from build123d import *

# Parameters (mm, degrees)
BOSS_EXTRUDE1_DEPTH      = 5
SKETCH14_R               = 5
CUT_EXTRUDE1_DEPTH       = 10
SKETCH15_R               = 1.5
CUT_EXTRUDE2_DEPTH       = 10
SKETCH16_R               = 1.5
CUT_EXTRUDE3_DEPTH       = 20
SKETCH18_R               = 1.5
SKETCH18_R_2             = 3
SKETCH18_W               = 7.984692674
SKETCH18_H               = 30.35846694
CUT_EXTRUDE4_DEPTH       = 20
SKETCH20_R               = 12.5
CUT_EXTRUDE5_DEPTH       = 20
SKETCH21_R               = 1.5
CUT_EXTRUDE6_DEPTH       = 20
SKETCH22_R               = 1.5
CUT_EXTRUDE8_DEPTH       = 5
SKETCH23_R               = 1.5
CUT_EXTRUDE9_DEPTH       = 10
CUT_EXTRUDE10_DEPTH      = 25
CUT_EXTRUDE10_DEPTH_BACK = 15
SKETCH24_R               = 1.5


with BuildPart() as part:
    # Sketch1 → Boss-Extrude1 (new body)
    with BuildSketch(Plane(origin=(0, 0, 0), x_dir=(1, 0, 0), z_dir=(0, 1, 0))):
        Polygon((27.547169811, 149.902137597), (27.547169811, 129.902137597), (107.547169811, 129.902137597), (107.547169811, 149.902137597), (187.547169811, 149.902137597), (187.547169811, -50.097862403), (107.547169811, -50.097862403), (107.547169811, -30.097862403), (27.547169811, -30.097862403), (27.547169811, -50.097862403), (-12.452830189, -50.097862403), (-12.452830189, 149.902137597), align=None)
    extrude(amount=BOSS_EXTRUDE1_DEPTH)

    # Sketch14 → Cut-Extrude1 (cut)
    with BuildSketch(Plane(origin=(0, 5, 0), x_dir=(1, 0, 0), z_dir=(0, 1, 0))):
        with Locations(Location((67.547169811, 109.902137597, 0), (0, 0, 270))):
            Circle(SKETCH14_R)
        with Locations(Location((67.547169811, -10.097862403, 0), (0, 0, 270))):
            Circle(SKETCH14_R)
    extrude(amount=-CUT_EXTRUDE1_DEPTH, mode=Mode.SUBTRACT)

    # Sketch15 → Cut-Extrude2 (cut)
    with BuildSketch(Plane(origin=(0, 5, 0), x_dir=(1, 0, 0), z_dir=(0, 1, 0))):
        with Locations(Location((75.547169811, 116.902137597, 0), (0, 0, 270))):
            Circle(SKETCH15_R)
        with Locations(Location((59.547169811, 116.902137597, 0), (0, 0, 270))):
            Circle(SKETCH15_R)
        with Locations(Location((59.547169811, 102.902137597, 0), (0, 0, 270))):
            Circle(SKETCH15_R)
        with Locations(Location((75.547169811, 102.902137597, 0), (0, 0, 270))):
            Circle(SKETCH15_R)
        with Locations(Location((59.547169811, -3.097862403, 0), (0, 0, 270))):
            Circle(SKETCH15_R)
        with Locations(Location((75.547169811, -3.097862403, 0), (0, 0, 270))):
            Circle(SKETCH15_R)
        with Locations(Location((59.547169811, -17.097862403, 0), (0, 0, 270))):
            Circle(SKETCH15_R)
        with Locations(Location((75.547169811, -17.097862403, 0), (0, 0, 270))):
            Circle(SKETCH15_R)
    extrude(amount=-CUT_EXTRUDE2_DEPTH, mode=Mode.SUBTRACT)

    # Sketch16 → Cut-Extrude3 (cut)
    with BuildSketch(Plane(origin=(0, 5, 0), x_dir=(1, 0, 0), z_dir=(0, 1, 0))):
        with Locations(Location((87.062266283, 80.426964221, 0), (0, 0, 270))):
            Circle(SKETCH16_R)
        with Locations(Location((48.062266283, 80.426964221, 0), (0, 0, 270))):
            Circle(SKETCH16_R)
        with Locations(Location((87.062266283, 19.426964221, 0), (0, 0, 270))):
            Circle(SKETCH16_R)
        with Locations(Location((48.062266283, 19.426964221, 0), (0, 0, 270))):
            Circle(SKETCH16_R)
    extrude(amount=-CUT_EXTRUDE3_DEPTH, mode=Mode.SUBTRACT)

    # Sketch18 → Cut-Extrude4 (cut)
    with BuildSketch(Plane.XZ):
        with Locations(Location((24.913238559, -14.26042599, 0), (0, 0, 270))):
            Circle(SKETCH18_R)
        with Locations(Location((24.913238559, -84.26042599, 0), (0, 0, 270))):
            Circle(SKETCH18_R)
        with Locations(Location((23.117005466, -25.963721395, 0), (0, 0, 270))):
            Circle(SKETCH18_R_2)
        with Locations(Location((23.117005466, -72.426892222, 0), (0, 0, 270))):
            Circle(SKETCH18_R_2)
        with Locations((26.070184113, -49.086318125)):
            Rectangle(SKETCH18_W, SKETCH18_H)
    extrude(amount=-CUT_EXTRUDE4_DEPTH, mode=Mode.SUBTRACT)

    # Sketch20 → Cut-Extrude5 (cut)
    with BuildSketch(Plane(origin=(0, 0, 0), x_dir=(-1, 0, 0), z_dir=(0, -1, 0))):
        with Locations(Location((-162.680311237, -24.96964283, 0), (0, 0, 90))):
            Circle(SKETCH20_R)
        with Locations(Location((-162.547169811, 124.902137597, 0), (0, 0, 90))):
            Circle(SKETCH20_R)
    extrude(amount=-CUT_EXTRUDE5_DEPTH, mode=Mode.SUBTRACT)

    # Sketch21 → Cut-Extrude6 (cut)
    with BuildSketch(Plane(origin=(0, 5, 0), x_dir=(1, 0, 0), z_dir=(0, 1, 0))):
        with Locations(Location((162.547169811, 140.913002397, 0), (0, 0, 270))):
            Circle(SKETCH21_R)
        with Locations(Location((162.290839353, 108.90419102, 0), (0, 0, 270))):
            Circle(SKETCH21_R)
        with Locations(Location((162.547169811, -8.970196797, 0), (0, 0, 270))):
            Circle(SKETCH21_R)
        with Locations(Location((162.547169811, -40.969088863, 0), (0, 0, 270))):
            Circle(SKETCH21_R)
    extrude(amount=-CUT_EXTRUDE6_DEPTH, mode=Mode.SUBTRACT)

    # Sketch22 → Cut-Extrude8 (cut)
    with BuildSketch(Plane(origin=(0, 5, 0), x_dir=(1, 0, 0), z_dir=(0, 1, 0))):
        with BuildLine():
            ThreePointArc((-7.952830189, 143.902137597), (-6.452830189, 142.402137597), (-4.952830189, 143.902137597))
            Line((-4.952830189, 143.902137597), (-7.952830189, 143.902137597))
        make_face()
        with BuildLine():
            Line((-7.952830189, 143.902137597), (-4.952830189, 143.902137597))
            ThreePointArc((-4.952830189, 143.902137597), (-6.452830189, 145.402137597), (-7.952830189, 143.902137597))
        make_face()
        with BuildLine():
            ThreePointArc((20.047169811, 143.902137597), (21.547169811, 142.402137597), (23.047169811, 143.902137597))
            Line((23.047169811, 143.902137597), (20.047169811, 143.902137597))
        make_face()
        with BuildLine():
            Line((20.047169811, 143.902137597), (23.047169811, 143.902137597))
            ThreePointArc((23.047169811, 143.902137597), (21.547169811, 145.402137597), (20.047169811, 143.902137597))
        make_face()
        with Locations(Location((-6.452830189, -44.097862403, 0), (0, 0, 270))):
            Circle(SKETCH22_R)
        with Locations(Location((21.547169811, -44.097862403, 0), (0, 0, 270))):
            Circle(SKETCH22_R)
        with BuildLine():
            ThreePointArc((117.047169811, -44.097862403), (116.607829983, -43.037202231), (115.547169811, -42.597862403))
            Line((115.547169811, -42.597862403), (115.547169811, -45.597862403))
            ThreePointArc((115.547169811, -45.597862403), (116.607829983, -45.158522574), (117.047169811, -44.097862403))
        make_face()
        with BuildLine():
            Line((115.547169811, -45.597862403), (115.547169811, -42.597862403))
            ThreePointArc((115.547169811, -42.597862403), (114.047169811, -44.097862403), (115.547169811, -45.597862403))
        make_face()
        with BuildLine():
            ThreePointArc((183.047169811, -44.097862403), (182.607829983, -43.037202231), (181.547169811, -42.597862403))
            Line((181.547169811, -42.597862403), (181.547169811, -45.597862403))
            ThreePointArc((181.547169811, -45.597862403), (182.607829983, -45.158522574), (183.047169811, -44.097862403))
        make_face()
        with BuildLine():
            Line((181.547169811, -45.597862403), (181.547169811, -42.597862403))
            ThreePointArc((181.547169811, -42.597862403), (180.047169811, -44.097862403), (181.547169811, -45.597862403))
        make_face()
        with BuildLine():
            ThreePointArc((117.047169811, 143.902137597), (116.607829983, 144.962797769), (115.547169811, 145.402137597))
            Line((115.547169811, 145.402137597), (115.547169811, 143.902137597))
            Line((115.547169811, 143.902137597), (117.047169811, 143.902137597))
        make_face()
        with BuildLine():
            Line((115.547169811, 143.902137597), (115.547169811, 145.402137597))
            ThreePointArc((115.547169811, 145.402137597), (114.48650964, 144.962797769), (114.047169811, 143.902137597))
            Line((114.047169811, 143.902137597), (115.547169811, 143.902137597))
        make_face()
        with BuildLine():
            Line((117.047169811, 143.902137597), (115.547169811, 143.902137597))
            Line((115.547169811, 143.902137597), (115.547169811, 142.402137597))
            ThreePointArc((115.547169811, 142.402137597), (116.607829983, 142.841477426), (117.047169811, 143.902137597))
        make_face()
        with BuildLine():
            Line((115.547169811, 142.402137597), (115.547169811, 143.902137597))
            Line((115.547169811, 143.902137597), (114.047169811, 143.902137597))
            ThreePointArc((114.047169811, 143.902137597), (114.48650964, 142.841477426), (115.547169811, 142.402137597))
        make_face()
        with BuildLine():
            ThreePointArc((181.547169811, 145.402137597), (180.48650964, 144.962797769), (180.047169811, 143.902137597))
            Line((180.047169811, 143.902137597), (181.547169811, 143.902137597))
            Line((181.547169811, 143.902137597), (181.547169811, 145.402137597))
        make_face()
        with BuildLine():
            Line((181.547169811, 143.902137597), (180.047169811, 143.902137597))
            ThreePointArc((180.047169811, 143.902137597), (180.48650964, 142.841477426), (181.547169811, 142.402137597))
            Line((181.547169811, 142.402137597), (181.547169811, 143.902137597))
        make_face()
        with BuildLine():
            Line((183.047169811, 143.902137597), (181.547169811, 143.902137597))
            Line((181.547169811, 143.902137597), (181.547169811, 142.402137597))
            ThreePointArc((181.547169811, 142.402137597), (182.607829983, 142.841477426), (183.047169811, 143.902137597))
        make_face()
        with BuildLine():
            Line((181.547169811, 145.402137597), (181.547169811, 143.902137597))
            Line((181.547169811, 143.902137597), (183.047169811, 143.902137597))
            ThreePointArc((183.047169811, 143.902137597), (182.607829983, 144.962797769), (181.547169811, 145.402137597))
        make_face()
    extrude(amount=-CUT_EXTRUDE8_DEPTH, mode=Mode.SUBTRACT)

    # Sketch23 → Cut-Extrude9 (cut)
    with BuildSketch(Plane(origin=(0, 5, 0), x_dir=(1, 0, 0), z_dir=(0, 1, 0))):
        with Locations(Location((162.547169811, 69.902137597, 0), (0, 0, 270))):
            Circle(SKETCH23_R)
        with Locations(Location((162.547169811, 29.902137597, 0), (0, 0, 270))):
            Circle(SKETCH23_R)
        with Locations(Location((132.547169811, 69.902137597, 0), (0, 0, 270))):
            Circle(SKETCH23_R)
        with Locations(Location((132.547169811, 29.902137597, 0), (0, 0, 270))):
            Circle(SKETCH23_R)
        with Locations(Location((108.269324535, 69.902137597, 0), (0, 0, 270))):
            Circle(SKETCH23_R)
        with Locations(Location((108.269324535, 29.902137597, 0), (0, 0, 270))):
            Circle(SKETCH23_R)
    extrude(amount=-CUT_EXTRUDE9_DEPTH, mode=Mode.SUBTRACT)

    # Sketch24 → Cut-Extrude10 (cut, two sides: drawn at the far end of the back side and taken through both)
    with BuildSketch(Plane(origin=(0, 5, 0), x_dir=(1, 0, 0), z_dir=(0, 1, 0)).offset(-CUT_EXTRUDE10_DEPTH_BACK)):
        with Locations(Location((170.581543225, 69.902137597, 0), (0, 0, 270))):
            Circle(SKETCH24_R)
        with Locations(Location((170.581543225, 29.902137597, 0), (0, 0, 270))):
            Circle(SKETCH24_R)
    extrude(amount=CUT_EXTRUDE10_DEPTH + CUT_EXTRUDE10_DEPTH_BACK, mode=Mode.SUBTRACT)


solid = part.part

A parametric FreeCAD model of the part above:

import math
import FreeCAD as App
import Part
import Sketcher
Q = App.Units.Quantity

doc = App.newDocument("Part")
body = doc.addObject("PartDesign::Body", "Body")

sketch1 = body.newObject("Sketcher::SketchObject", "Sketch")
sketch1.AttachmentSupport = (doc.getObject("XZ_Plane"), [""])
sketch1.MapMode = "FlatFace"
sketch1.addGeometry([
    Part.LineSegment(App.Vector(28, -130, 0), App.Vector(28, -150, 0)),
    Part.LineSegment(App.Vector(28, -150, 0), App.Vector(-12, -150, 0)),
    Part.LineSegment(App.Vector(-12, -150, 0), App.Vector(-12, 50, 0)),
    Part.LineSegment(App.Vector(-12, 50, 0), App.Vector(28, 50, 0)),
    Part.LineSegment(App.Vector(28, 50, 0), App.Vector(28, 30, 0)),
    Part.LineSegment(App.Vector(28, 30, 0), App.Vector(108, 30, 0)),
    Part.LineSegment(App.Vector(108, 30, 0), App.Vector(108, 50, 0)),
    Part.LineSegment(App.Vector(108, 50, 0), App.Vector(188, 50, 0)),
    Part.LineSegment(App.Vector(188, 50, 0), App.Vector(188, -150, 0)),
    Part.LineSegment(App.Vector(188, -150, 0), App.Vector(108, -150, 0)),
    Part.LineSegment(App.Vector(108, -150, 0), App.Vector(108, -130, 0)),
    Part.LineSegment(App.Vector(108, -130, 0), App.Vector(28, -130, 0)),
], False)
sketch1.addConstraint([
    Sketcher.Constraint("Coincident", 0, 2, 1, 1),
    Sketcher.Constraint("Coincident", 1, 2, 2, 1),
    Sketcher.Constraint("Coincident", 2, 2, 3, 1),
    Sketcher.Constraint("Coincident", 3, 2, 4, 1),
    Sketcher.Constraint("Coincident", 4, 2, 5, 1),
    Sketcher.Constraint("Coincident", 5, 2, 6, 1),
    Sketcher.Constraint("Coincident", 6, 2, 7, 1),
    Sketcher.Constraint("Coincident", 7, 2, 8, 1),
    Sketcher.Constraint("Coincident", 8, 2, 9, 1),
    Sketcher.Constraint("Coincident", 9, 2, 10, 1),
    Sketcher.Constraint("Coincident", 10, 2, 11, 1),
    Sketcher.Constraint("Coincident", 11, 2, 0, 1),
    Sketcher.Constraint("Vertical", 0),
    Sketcher.Constraint("Horizontal", 1),
    Sketcher.Constraint("Vertical", 2),
    Sketcher.Constraint("Horizontal", 3),
    Sketcher.Constraint("Vertical", 4),
    Sketcher.Constraint("Horizontal", 5),
    Sketcher.Constraint("Vertical", 6),
    Sketcher.Constraint("Horizontal", 7),
    Sketcher.Constraint("Vertical", 8),
    Sketcher.Constraint("Horizontal", 9),
    Sketcher.Constraint("Vertical", 10),
    Sketcher.Constraint("Horizontal", 11),
    Sketcher.Constraint("Horizontal", 3, 2, 6, 2),
    Sketcher.Constraint("Horizontal", 1, 2, 8, 2),
    Sketcher.Constraint("Vertical", 0, 2, 3, 2),
    Sketcher.Constraint("Vertical", 6, 2, 9, 2),
    Sketcher.Constraint("Equal", 5, 7),
    Sketcher.Constraint("Equal", 0, 4),
    Sketcher.Constraint("DistanceX", 1, 2, 1, 1, Q("40 mm")),
    Sketcher.Constraint("DistanceX", 5, 1, 5, 2, Q("80 mm")),
    Sketcher.Constraint("DistanceY", 0, 2, 0, 1, Q("20 mm")),
    Sketcher.Constraint("DistanceY", 2, 1, 2, 2, Q("200 mm")),
    Sketcher.Constraint("DistanceX", -1, 1, 0, 2, Q("27.54717 mm")),
    Sketcher.Constraint("DistanceY", 0, 2, -1, 1, Q("149.902138 mm")),
])
pad1 = body.newObject("PartDesign::Pad", "Pad")
pad1.Profile = sketch1
pad1.Length = 5
pad1.Reversed = True

sketch2 = body.newObject("Sketcher::SketchObject", "Sketch001")
sketch2.AttachmentSupport = (doc.getObject("XZ_Plane"), [""])
sketch2.MapMode = "FlatFace"
sketch2.AttachmentOffset = App.Placement(App.Vector(0, 0, -5), App.Rotation())
sketch2.addGeometry([
    Part.Circle(App.Vector(68, -110, 0), App.Vector(0, 0, 1), 5),
    Part.Circle(App.Vector(68, 10, 0), App.Vector(0, 0, 1), 5),
], False)
sketch2.addConstraint([
    Sketcher.Constraint("Equal", 0, 1),
    Sketcher.Constraint("Vertical", 0, 3, 1, 3),
    Sketcher.Constraint("Diameter", 0, Q("10 mm")),
    Sketcher.Constraint("DistanceY", 0, 3, 1, 3, Q("120 mm")),
    Sketcher.Constraint("DistanceX", -1, 1, 0, 3, Q("67.54717 mm")),
    Sketcher.Constraint("DistanceY", 0, 3, -1, 1, Q("109.902138 mm")),
])
pocket1 = body.newObject("PartDesign::Pocket", "Pocket")
pocket1.Profile = sketch2
pocket1.Length = 10
pocket1.Reversed = True

sketch3 = body.newObject("Sketcher::SketchObject", "Sketch002")
sketch3.AttachmentSupport = (doc.getObject("XZ_Plane"), [""])
sketch3.MapMode = "FlatFace"
sketch3.AttachmentOffset = App.Placement(App.Vector(0, 0, -5), App.Rotation())
sketch3.addGeometry([
    Part.Circle(App.Vector(75.5, -116.9, 0), App.Vector(0, 0, 1), 1.5),
    Part.Circle(App.Vector(59.5, -116.9, 0), App.Vector(0, 0, 1), 1.5),
    Part.Circle(App.Vector(59.5, -102.9, 0), App.Vector(0, 0, 1), 1.5),
    Part.Circle(App.Vector(75.5, -102.9, 0), App.Vector(0, 0, 1), 1.5),
    Part.Circle(App.Vector(59.5, 3.1, 0), App.Vector(0, 0, 1), 1.5),
    Part.Circle(App.Vector(75.5, 3.1, 0), App.Vector(0, 0, 1), 1.5),
    Part.Circle(App.Vector(59.5, 17.1, 0), App.Vector(0, 0, 1), 1.5),
    Part.Circle(App.Vector(75.5, 17.1, 0), App.Vector(0, 0, 1), 1.5),
], False)
sketch3.addConstraint([
    Sketcher.Constraint("Equal", 0, 1),
    Sketcher.Constraint("Equal", 1, 2),
    Sketcher.Constraint("Equal", 2, 3),
    Sketcher.Constraint("Equal", 3, 4),
    Sketcher.Constraint("Equal", 4, 5),
    Sketcher.Constraint("Equal", 5, 6),
    Sketcher.Constraint("Equal", 6, 7),
    Sketcher.Constraint("Horizontal", 0, 3, 1, 3),
    Sketcher.Constraint("Horizontal", 2, 3, 3, 3),
    Sketcher.Constraint("Horizontal", 4, 3, 5, 3),
    Sketcher.Constraint("Horizontal", 6, 3, 7, 3),
    Sketcher.Constraint("Vertical", 1, 3, 2, 3),
    Sketcher.Constraint("Vertical", 0, 3, 3, 3),
    Sketcher.Constraint("Vertical", 2, 3, 4, 3),
    Sketcher.Constraint("Vertical", 3, 3, 5, 3),
    Sketcher.Constraint("Vertical", 4, 3, 6, 3),
    Sketcher.Constraint("Vertical", 5, 3, 7, 3),
    Sketcher.Constraint("Diameter", 0, Q("3 mm")),
    Sketcher.Constraint("DistanceX", 1, 3, 0, 3, Q("16 mm")),
    Sketcher.Constraint("DistanceY", 1, 3, 2, 3, Q("14 mm")),
    Sketcher.Constraint("DistanceY", 2, 3, 4, 3, Q("106 mm")),
    Sketcher.Constraint("DistanceY", 4, 3, 6, 3, Q("14 mm")),
    Sketcher.Constraint("DistanceX", -1, 1, 0, 3, Q("75.54717 mm")),
    Sketcher.Constraint("DistanceY", 0, 3, -1, 1, Q("116.902138 mm")),
])
pocket2 = body.newObject("PartDesign::Pocket", "Pocket001")
pocket2.Profile = sketch3
pocket2.Length = 10
pocket2.Reversed = True

sketch4 = body.newObject("Sketcher::SketchObject", "Sketch003")
sketch4.AttachmentSupport = (doc.getObject("XZ_Plane"), [""])
sketch4.MapMode = "FlatFace"
sketch4.AttachmentOffset = App.Placement(App.Vector(0, 0, -5), App.Rotation())
sketch4.addGeometry([
    Part.Circle(App.Vector(87.1, -80.4, 0), App.Vector(0, 0, 1), 1.5),
    Part.Circle(App.Vector(48.1, -80.4, 0), App.Vector(0, 0, 1), 1.5),
    Part.Circle(App.Vector(87.1, -19.4, 0), App.Vector(0, 0, 1), 1.5),
    Part.Circle(App.Vector(48.1, -19.4, 0), App.Vector(0, 0, 1), 1.5),
], False)
sketch4.addConstraint([
    Sketcher.Constraint("Equal", 0, 1),
    Sketcher.Constraint("Equal", 1, 2),
    Sketcher.Constraint("Equal", 2, 3),
    Sketcher.Constraint("Horizontal", 0, 3, 1, 3),
    Sketcher.Constraint("Horizontal", 2, 3, 3, 3),
    Sketcher.Constraint("Vertical", 0, 3, 2, 3),
    Sketcher.Constraint("Vertical", 1, 3, 3, 3),
    Sketcher.Constraint("Diameter", 0, Q("3 mm")),
    Sketcher.Constraint("DistanceX", 1, 3, 0, 3, Q("39 mm")),
    Sketcher.Constraint("DistanceY", 0, 3, 2, 3, Q("61 mm")),
    Sketcher.Constraint("DistanceX", -1, 1, 0, 3, Q("87.062266 mm")),
    Sketcher.Constraint("DistanceY", 0, 3, -1, 1, Q("80.426964 mm")),
])
pocket3 = body.newObject("PartDesign::Pocket", "Pocket002")
pocket3.Profile = sketch4
pocket3.Length = 20
pocket3.Reversed = True

sketch5 = body.newObject("Sketcher::SketchObject", "Sketch004")
sketch5.AttachmentSupport = (doc.getObject("XZ_Plane"), [""])
sketch5.MapMode = "FlatFace"
sketch5.addGeometry([
    Part.Circle(App.Vector(24.9, -14.3, 0), App.Vector(0, 0, 1), 1.5),
    Part.Circle(App.Vector(24.9, -84.3, 0), App.Vector(0, 0, 1), 1.5),
    Part.Circle(App.Vector(23.1, -26, 0), App.Vector(0, 0, 1), 3),
    Part.Circle(App.Vector(23.1, -72.4, 0), App.Vector(0, 0, 1), 3),
    Part.LineSegment(App.Vector(22.1, -33.9, 0), App.Vector(22.1, -64.3, 0)),
    Part.LineSegment(App.Vector(22.1, -64.3, 0), App.Vector(30.1, -64.3, 0)),
    Part.LineSegment(App.Vector(30.1, -64.3, 0), App.Vector(30.1, -33.9, 0)),
    Part.LineSegment(App.Vector(30.1, -33.9, 0), App.Vector(22.1, -33.9, 0)),
], False)
sketch5.addConstraint([
    Sketcher.Constraint("Coincident", 4, 2, 5, 1),
    Sketcher.Constraint("Coincident", 5, 2, 6, 1),
    Sketcher.Constraint("Coincident", 6, 2, 7, 1),
    Sketcher.Constraint("Coincident", 7, 2, 4, 1),
    Sketcher.Constraint("Vertical", 4),
    Sketcher.Constraint("Horizontal", 5),
    Sketcher.Constraint("Vertical", 6),
    Sketcher.Constraint("Horizontal", 7),
    Sketcher.Constraint("Equal", 0, 1),
    Sketcher.Constraint("Equal", 2, 3),
    Sketcher.Constraint("Vertical", 0, 3, 1, 3),
    Sketcher.Constraint("Vertical", 2, 3, 3, 3),
    Sketcher.Constraint("Diameter", 0, Q("3 mm")),
    Sketcher.Constraint("Diameter", 2, Q("6 mm")),
    Sketcher.Constraint("DistanceY", 1, 3, 0, 3, Q("70 mm")),
    Sketcher.Constraint("DistanceX", 4, 2, 1, 3, Q("2.835401 mm")),
    Sketcher.Constraint("DistanceX", 5, 1, 5, 2, Q("7.984693 mm")),
    Sketcher.Constraint("DistanceY", 4, 2, 4, 1, Q("30.358467 mm")),
    Sketcher.Constraint("DistanceX", -1, 1, 0, 3, Q("24.913239 mm")),
    Sketcher.Constraint("DistanceY", 2, 3, -1, 1, Q("25.963721 mm")),
    Sketcher.Constraint("DistanceY", 4, 2, -1, 1, Q("64.265552 mm")),
    Sketcher.Constraint("DistanceY", 3, 3, 2, 3, Q("46.463171 mm")),
    Sketcher.Constraint("DistanceY", 6, 2, 0, 3, Q("19.646659 mm")),
    Sketcher.Constraint("DistanceX", -1, 1, 2, 3, Q("23.117005 mm")),
])
pocket4 = body.newObject("PartDesign::Pocket", "Pocket003")
pocket4.Profile = sketch5
pocket4.Length = 20

sketch6 = body.newObject("Sketcher::SketchObject", "Sketch005")
sketch6.AttachmentSupport = (doc.getObject("XZ_Plane"), [""])
sketch6.MapMode = "FlatFace"
sketch6.addGeometry([
    Part.Circle(App.Vector(163, 25, 0), App.Vector(0, 0, 1), 12),
    Part.Circle(App.Vector(163, -125, 0), App.Vector(0, 0, 1), 12),
], False)
sketch6.addConstraint([
    Sketcher.Constraint("Equal", 0, 1),
    Sketcher.Constraint("Diameter", 0, Q("25 mm")),
    Sketcher.Constraint("DistanceX", -1, 1, 0, 3, Q("162.680311 mm")),
    Sketcher.Constraint("DistanceX", -1, 1, 1, 3, Q("162.54717 mm")),
    Sketcher.Constraint("DistanceY", 1, 3, 0, 3, Q("149.87178 mm")),
    Sketcher.Constraint("DistanceY", -1, 1, 0, 3, Q("24.969643 mm")),
])
pocket5 = body.newObject("PartDesign::Pocket", "Pocket004")
pocket5.Profile = sketch6
pocket5.Length = 20

sketch7 = body.newObject("Sketcher::SketchObject", "Sketch006")
sketch7.AttachmentSupport = (doc.getObject("XZ_Plane"), [""])
sketch7.MapMode = "FlatFace"
sketch7.AttachmentOffset = App.Placement(App.Vector(0, 0, -5), App.Rotation())
sketch7.addGeometry([
    Part.Circle(App.Vector(162.5, -140.9, 0), App.Vector(0, 0, 1), 1.5),
    Part.Circle(App.Vector(162.3, -108.9, 0), App.Vector(0, 0, 1), 1.5),
    Part.Circle(App.Vector(162.5, 9, 0), App.Vector(0, 0, 1), 1.5),
    Part.Circle(App.Vector(162.5, 41, 0), App.Vector(0, 0, 1), 1.5),
], False)
sketch7.addConstraint([
    Sketcher.Constraint("Equal", 0, 1),
    Sketcher.Constraint("Equal", 1, 2),
    Sketcher.Constraint("Equal", 2, 3),
    Sketcher.Constraint("Vertical", 0, 3, 2, 3),
    Sketcher.Constraint("Vertical", 2, 3, 3, 3),
    Sketcher.Constraint("Diameter", 0, Q("3 mm")),
    Sketcher.Constraint("DistanceY", 0, 3, 2, 3, Q("149.883199 mm")),
    Sketcher.Constraint("DistanceX", -1, 1, 0, 3, Q("162.54717 mm")),
    Sketcher.Constraint("DistanceX", -1, 1, 1, 3, Q("162.290839 mm")),
    Sketcher.Constraint("DistanceY", 1, 3, -1, 1, Q("108.904191 mm")),
    Sketcher.Constraint("DistanceY", -1, 1, 3, 3, Q("40.969089 mm")),
    Sketcher.Constraint("DistanceY", 0, 3, 1, 3, Q("32.008811 mm")),
])
pocket6 = body.newObject("PartDesign::Pocket", "Pocket005")
pocket6.Profile = sketch7
pocket6.Length = 20
pocket6.Reversed = True

sketch8 = body.newObject("Sketcher::SketchObject", "Sketch007")
sketch8.AttachmentSupport = (doc.getObject("XZ_Plane"), [""])
sketch8.MapMode = "FlatFace"
sketch8.AttachmentOffset = App.Placement(App.Vector(0, 0, -5), App.Rotation())
sketch8.addGeometry([
    Part.Circle(App.Vector(-6.5, -143.9, 0), App.Vector(0, 0, 1), 1.5),
    Part.Circle(App.Vector(21.5, -143.9, 0), App.Vector(0, 0, 1), 1.5),
    Part.Circle(App.Vector(-6.5, 44.1, 0), App.Vector(0, 0, 1), 1.5),
    Part.Circle(App.Vector(21.5, 44.1, 0), App.Vector(0, 0, 1), 1.5),
    Part.ArcOfCircle(Part.Circle(App.Vector(115.5, 44.1, 0), App.Vector(0, 0, 1), 1.5), math.radians(-90), math.radians(0)),
    Part.ArcOfCircle(Part.Circle(App.Vector(115.5, 44.1, 0), App.Vector(0, 0, 1), 1.5), math.radians(90), math.radians(270)),
    Part.ArcOfCircle(Part.Circle(App.Vector(115.5, 44.1, 0), App.Vector(0, 0, 1), 1.5), math.radians(0), math.radians(90)),
    Part.ArcOfCircle(Part.Circle(App.Vector(181.5, 44.1, 0), App.Vector(0, 0, 1), 1.5), math.radians(-90), math.radians(0)),
    Part.ArcOfCircle(Part.Circle(App.Vector(181.5, 44.1, 0), App.Vector(0, 0, 1), 1.5), math.radians(90), math.radians(270)),
    Part.ArcOfCircle(Part.Circle(App.Vector(181.5, 44.1, 0), App.Vector(0, 0, 1), 1.5), math.radians(0), math.radians(90)),
    Part.ArcOfCircle(Part.Circle(App.Vector(115.5, -143.9, 0), App.Vector(0, 0, 1), 1.5), math.radians(-180), math.radians(-90)),
    Part.ArcOfCircle(Part.Circle(App.Vector(115.5, -143.9, 0), App.Vector(0, 0, 1), 1.5), math.radians(90), math.radians(180)),
    Part.ArcOfCircle(Part.Circle(App.Vector(115.5, -143.9, 0), App.Vector(0, 0, 1), 1.5), math.radians(0), math.radians(90)),
    Part.ArcOfCircle(Part.Circle(App.Vector(115.5, -143.9, 0), App.Vector(0, 0, 1), 1.5), math.radians(-90), math.radians(0)),
    Part.ArcOfCircle(Part.Circle(App.Vector(181.5, -143.9, 0), App.Vector(0, 0, 1), 1.5), math.radians(-180), math.radians(-90)),
    Part.ArcOfCircle(Part.Circle(App.Vector(181.5, -143.9, 0), App.Vector(0, 0, 1), 1.5), math.radians(90), math.radians(180)),
    Part.ArcOfCircle(Part.Circle(App.Vector(181.5, -143.9, 0), App.Vector(0, 0, 1), 1.5), math.radians(0), math.radians(90)),
    Part.ArcOfCircle(Part.Circle(App.Vector(181.5, -143.9, 0), App.Vector(0, 0, 1), 1.5), math.radians(-90), math.radians(0)),
], False)
sketch8.addConstraint([
    Sketcher.Constraint("Tangent", 4, 1, 5, 2),
    Sketcher.Constraint("Tangent", 5, 1, 6, 2),
    Sketcher.Constraint("Tangent", 6, 1, 4, 2),
    Sketcher.Constraint("Tangent", 7, 1, 8, 2),
    Sketcher.Constraint("Tangent", 8, 1, 9, 2),
    Sketcher.Constraint("Tangent", 9, 1, 7, 2),
    Sketcher.Constraint("Tangent", 10, 1, 11, 2),
    Sketcher.Constraint("Tangent", 11, 1, 12, 2),
    Sketcher.Constraint("Tangent", 12, 1, 13, 2),
    Sketcher.Constraint("Tangent", 13, 1, 10, 2),
    Sketcher.Constraint("Tangent", 14, 1, 15, 2),
    Sketcher.Constraint("Tangent", 15, 1, 16, 2),
    Sketcher.Constraint("Tangent", 16, 1, 17, 2),
    Sketcher.Constraint("Tangent", 17, 1, 14, 2),
    Sketcher.Constraint("Equal", 0, 1),
    Sketcher.Constraint("Equal", 1, 2),
    Sketcher.Constraint("Equal", 2, 3),
    Sketcher.Constraint("Equal", 3, 4),
    Sketcher.Constraint("Equal", 6, 7),
    Sketcher.Constraint("Equal", 9, 10),
    Sketcher.Constraint("Equal", 10, 11),
    Sketcher.Constraint("Equal", 13, 14),
    Sketcher.Constraint("Equal", 14, 15),
    Sketcher.Constraint("Horizontal", 0, 3, 1, 3),
    Sketcher.Constraint("Horizontal", 2, 3, 3, 3),
    Sketcher.Constraint("Horizontal", 3, 3, 4, 3),
    Sketcher.Constraint("Horizontal", 6, 3, 7, 3),
    Sketcher.Constraint("Horizontal", 1, 3, 10, 3),
    Sketcher.Constraint("Horizontal", 13, 3, 14, 3),
    Sketcher.Constraint("Horizontal", 9, 3, 6, 1),
    Sketcher.Constraint("Horizontal", 6, 1, 9, 1),
    Sketcher.Constraint("Horizontal", 17, 3, 10, 1),
    Sketcher.Constraint("Horizontal", 10, 1, 12, 1),
    Sketcher.Constraint("Horizontal", 12, 1, 14, 1),
    Sketcher.Constraint("Horizontal", 14, 1, 16, 1),
    Sketcher.Constraint("Vertical", 0, 3, 2, 3),
    Sketcher.Constraint("Vertical", 1, 3, 3, 3),
    Sketcher.Constraint("Vertical", 6, 3, 10, 3),
    Sketcher.Constraint("Vertical", 9, 3, 14, 3),
    Sketcher.Constraint("Vertical", 13, 3, 4, 1),
    Sketcher.Constraint("Vertical", 4, 1, 5, 1),
    Sketcher.Constraint("Vertical", 17, 3, 7, 1),
    Sketcher.Constraint("Vertical", 7, 1, 8, 1),
    Sketcher.Constraint("Vertical", 5, 1, 11, 1),
    Sketcher.Constraint("Vertical", 11, 1, 13, 1),
    Sketcher.Constraint("Vertical", 8, 1, 15, 1),
    Sketcher.Constraint("Vertical", 15, 1, 17, 1),
    Sketcher.Constraint("Diameter", 0, Q("3 mm")),
    Sketcher.Constraint("DistanceX", 0, 3, 1, 3, Q("28 mm")),
    Sketcher.Constraint("DistanceY", 0, 3, 2, 3, Q("188 mm")),
    Sketcher.Constraint("DistanceX", 3, 3, 4, 3, Q("94 mm")),
    Sketcher.Constraint("DistanceX", 4, 3, 7, 3, Q("66 mm")),
    Sketcher.Constraint("DistanceX", 0, 3, -1, 1, Q("6.45283 mm")),
    Sketcher.Constraint("DistanceY", 0, 3, -1, 1, Q("143.902138 mm")),
])
pocket7 = body.newObject("PartDesign::Pocket", "Pocket006")
pocket7.Profile = sketch8
pocket7.Length = 5
pocket7.Reversed = True

sketch9 = body.newObject("Sketcher::SketchObject", "Sketch008")
sketch9.AttachmentSupport = (doc.getObject("XZ_Plane"), [""])
sketch9.MapMode = "FlatFace"
sketch9.AttachmentOffset = App.Placement(App.Vector(0, 0, -5), App.Rotation())
sketch9.addGeometry([
    Part.Circle(App.Vector(162.5, -69.9, 0), App.Vector(0, 0, 1), 1.5),
    Part.Circle(App.Vector(162.5, -29.9, 0), App.Vector(0, 0, 1), 1.5),
    Part.Circle(App.Vector(132.5, -69.9, 0), App.Vector(0, 0, 1), 1.5),
    Part.Circle(App.Vector(132.5, -29.9, 0), App.Vector(0, 0, 1), 1.5),
    Part.Circle(App.Vector(108.3, -69.9, 0), App.Vector(0, 0, 1), 1.5),
    Part.Circle(App.Vector(108.3, -29.9, 0), App.Vector(0, 0, 1), 1.5),
], False)
sketch9.addConstraint([
    Sketcher.Constraint("Equal", 0, 1),
    Sketcher.Constraint("Equal", 1, 2),
    Sketcher.Constraint("Equal", 2, 3),
    Sketcher.Constraint("Equal", 3, 4),
    Sketcher.Constraint("Equal", 4, 5),
    Sketcher.Constraint("Horizontal", 0, 3, 2, 3),
    Sketcher.Constraint("Horizontal", 1, 3, 3, 3),
    Sketcher.Constraint("Horizontal", 2, 3, 4, 3),
    Sketcher.Constraint("Horizontal", 3, 3, 5, 3),
    Sketcher.Constraint("Vertical", 0, 3, 1, 3),
    Sketcher.Constraint("Vertical", 2, 3, 3, 3),
    Sketcher.Constraint("Vertical", 4, 3, 5, 3),
    Sketcher.Constraint("Diameter", 0, Q("3 mm")),
    Sketcher.Constraint("DistanceY", 0, 3, 1, 3, Q("40 mm")),
    Sketcher.Constraint("DistanceX", 2, 3, 0, 3, Q("30 mm")),
    Sketcher.Constraint("DistanceX", -1, 1, 0, 3, Q("162.54717 mm")),
    Sketcher.Constraint("DistanceY", 0, 3, -1, 1, Q("69.902138 mm")),
    Sketcher.Constraint("DistanceX", -1, 1, 4, 3, Q("108.269325 mm")),
])
pocket8 = body.newObject("PartDesign::Pocket", "Pocket007")
pocket8.Profile = sketch9
pocket8.Length = 10
pocket8.Reversed = True

sketch10 = body.newObject("Sketcher::SketchObject", "Sketch009")
sketch10.AttachmentSupport = (doc.getObject("XZ_Plane"), [""])
sketch10.MapMode = "FlatFace"
sketch10.AttachmentOffset = App.Placement(App.Vector(0, 0, -5), App.Rotation())
sketch10.addGeometry([
    Part.Circle(App.Vector(170.6, -69.9, 0), App.Vector(0, 0, 1), 1.5),
    Part.Circle(App.Vector(170.6, -29.9, 0), App.Vector(0, 0, 1), 1.5),
], False)
sketch10.addConstraint([
    Sketcher.Constraint("Equal", 0, 1),
    Sketcher.Constraint("Vertical", 0, 3, 1, 3),
    Sketcher.Constraint("Diameter", 0, Q("3 mm")),
    Sketcher.Constraint("DistanceY", 0, 3, 1, 3, Q("40 mm")),
    Sketcher.Constraint("DistanceX", -1, 1, 0, 3, Q("170.581543 mm")),
    Sketcher.Constraint("DistanceY", 0, 3, -1, 1, Q("69.902138 mm")),
])
pocket9 = body.newObject("PartDesign::Pocket", "Pocket008")
pocket9.Profile = sketch10
pocket9.Type = "ThroughAll"
pocket9.Midplane = True

doc.recompute()
